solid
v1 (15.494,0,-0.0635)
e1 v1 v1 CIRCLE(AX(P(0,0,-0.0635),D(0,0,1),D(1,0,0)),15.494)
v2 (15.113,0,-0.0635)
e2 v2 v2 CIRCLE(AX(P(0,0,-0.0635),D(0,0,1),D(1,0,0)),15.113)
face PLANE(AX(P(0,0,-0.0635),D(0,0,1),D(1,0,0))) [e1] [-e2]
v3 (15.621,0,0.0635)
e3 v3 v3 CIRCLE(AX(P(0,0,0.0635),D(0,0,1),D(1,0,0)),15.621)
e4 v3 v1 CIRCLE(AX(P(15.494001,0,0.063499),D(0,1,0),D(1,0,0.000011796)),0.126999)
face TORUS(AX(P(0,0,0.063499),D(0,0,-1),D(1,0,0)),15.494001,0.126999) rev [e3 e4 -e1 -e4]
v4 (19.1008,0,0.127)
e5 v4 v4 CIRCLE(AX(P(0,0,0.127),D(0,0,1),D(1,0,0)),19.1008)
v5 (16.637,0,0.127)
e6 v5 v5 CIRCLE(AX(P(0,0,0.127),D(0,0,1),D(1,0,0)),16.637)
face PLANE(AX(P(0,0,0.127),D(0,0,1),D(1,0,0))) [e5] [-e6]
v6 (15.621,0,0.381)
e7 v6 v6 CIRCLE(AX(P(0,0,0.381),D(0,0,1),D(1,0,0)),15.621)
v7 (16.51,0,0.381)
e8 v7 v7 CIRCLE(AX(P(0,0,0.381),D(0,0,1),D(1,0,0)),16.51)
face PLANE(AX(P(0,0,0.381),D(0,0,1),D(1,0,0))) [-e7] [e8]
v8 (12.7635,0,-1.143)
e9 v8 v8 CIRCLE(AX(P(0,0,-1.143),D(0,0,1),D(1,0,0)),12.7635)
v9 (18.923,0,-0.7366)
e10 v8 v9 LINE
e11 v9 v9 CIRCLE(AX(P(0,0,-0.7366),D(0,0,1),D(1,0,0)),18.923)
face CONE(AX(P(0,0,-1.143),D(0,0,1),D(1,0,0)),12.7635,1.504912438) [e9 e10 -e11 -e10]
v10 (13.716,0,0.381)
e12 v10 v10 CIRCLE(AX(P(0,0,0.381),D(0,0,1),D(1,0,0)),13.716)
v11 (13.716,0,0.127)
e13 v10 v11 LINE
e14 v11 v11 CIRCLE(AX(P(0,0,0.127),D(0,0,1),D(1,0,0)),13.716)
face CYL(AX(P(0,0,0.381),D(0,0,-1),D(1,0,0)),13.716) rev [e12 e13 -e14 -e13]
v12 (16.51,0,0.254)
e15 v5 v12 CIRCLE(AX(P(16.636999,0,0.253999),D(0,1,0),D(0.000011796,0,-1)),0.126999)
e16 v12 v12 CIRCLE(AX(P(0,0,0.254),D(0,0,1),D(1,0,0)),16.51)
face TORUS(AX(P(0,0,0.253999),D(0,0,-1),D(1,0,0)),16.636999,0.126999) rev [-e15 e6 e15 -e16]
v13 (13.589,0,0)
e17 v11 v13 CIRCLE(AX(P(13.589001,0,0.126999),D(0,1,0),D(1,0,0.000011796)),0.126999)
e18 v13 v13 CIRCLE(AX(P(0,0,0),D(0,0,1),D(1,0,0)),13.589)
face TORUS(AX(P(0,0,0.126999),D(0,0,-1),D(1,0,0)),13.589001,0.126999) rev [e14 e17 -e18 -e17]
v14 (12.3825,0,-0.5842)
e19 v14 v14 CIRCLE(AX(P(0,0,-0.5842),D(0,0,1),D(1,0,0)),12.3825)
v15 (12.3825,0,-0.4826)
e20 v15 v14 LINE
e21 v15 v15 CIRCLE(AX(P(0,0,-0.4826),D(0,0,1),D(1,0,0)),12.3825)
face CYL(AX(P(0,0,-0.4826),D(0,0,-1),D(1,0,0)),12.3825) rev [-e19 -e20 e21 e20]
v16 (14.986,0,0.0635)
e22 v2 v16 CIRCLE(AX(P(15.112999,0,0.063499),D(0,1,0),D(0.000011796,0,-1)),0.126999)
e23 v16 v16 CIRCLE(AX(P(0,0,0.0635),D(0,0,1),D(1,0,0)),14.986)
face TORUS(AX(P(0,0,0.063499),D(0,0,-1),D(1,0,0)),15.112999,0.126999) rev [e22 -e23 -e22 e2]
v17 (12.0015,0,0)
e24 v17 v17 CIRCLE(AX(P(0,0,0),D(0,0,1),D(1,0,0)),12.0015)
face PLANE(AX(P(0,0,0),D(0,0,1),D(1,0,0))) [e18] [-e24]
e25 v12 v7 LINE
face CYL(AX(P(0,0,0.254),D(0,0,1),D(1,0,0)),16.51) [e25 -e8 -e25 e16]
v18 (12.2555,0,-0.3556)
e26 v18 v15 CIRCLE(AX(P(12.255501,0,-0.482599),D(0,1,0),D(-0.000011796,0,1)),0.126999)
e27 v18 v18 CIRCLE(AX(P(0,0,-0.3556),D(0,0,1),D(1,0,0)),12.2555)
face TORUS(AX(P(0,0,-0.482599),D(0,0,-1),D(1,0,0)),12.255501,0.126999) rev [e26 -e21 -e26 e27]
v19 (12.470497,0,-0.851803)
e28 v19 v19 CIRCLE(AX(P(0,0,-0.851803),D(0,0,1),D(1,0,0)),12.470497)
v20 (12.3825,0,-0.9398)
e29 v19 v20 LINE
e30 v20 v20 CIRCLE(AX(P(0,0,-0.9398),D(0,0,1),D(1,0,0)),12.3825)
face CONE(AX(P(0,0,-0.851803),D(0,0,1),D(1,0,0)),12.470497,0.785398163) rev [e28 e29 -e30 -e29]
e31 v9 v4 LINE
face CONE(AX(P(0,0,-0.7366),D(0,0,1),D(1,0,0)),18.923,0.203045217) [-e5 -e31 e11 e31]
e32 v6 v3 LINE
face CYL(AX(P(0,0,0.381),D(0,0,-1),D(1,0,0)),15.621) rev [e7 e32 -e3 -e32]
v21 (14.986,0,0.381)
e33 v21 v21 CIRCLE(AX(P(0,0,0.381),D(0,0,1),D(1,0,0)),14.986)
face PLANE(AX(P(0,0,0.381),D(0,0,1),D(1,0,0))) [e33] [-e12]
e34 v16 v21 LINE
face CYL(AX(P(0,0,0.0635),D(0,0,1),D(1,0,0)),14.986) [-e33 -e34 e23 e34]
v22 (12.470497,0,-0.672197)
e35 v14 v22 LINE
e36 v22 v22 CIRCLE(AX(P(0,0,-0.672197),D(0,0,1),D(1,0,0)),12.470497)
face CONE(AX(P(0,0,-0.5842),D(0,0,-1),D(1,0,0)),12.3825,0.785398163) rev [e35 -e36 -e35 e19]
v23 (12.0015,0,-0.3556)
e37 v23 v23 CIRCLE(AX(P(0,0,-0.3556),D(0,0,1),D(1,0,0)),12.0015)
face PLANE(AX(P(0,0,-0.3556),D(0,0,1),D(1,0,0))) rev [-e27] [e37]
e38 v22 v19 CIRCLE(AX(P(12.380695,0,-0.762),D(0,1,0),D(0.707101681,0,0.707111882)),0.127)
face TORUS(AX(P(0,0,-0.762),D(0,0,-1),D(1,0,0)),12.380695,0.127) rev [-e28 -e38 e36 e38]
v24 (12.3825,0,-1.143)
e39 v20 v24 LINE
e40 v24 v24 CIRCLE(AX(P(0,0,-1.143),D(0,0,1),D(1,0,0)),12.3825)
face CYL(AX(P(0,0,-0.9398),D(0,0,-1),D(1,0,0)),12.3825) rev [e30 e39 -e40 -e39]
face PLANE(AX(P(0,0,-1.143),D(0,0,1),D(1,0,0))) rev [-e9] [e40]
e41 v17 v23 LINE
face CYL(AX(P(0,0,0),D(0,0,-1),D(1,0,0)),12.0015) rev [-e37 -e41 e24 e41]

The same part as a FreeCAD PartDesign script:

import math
import FreeCAD as App
import Part
import Sketcher

V = App.Vector
Q = App.Units.Quantity

doc = App.newDocument("Part")
body = doc.addObject("PartDesign::Body", "Body")

# Sketch on XZ plane
sketch1 = body.newObject("Sketcher::SketchObject", "Sketch")
sketch1.AttachmentSupport = (doc.getObject("XZ_Plane"), [""])
sketch1.MapMode = "FlatFace"
sketch1.addGeometry([
    Part.LineSegment(V(13.59, 0, 0), V(12, 0, 0)),  # 0
    Part.LineSegment(V(12, 0, 0), V(12, -0.36, 0)),  # 1
    Part.LineSegment(V(12, -0.36, 0), V(12.26, -0.36, 0)),  # 2
    Part.ArcOfCircle(Part.Circle(V(12.26, -0.48, 0), V(0, 0, 1), 0.13), math.radians(0), math.radians(90)),  # 3
    Part.LineSegment(V(12.38, -0.48, 0), V(12.38, -0.58, 0)),  # 4
    Part.LineSegment(V(12.38, -0.58, 0), V(12.47, -0.67, 0)),  # 5
    Part.ArcOfCircle(Part.Circle(V(12.38, -0.76, 0), V(0, 0, 1), 0.13), math.radians(-45), math.radians(45)),  # 6
    Part.LineSegment(V(12.47, -0.85, 0), V(12.38, -0.94, 0)),  # 7
    Part.LineSegment(V(12.38, -0.94, 0), V(12.38, -1.14, 0)),  # 8
    Part.LineSegment(V(12.38, -1.14, 0), V(12.76, -1.14, 0)),  # 9
    Part.LineSegment(V(12.76, -1.14, 0), V(18.92, -0.74, 0)),  # 10
    Part.LineSegment(V(18.92, -0.74, 0), V(19.1, 0.13, 0)),  # 11
    Part.LineSegment(V(19.1, 0.13, 0), V(16.64, 0.13, 0)),  # 12
    Part.ArcOfCircle(Part.Circle(V(16.64, 0.25, 0), V(0, 0, 1), 0.13), math.radians(180), math.radians(270)),  # 13
    Part.LineSegment(V(16.51, 0.25, 0), V(16.51, 0.38, 0)),  # 14
    Part.LineSegment(V(16.51, 0.38, 0), V(15.62, 0.38, 0)),  # 15
    Part.LineSegment(V(15.62, 0.38, 0), V(15.62, 0.06, 0)),  # 16
    Part.ArcOfCircle(Part.Circle(V(15.49, 0.06, 0), V(0, 0, 1), 0.13), math.radians(-90), math.radians(0)),  # 17
    Part.LineSegment(V(15.49, -0.06, 0), V(15.11, -0.06, 0)),  # 18
    Part.ArcOfCircle(Part.Circle(V(15.11, 0.06, 0), V(0, 0, 1), 0.13), math.radians(180), math.radians(270)),  # 19
    Part.LineSegment(V(14.99, 0.06, 0), V(14.99, 0.38, 0)),  # 20
    Part.LineSegment(V(14.99, 0.38, 0), V(13.72, 0.38, 0)),  # 21
    Part.LineSegment(V(13.72, 0.38, 0), V(13.72, 0.13, 0)),  # 22
    Part.ArcOfCircle(Part.Circle(V(13.59, 0.13, 0), V(0, 0, 1), 0.13), math.radians(-90), math.radians(0)),  # 23
], False)
sketch1.addConstraint([
    Sketcher.Constraint("Coincident", 0, 2, 1, 1),
    Sketcher.Constraint("Coincident", 1, 2, 2, 1),
    Sketcher.Constraint("Coincident", 2, 2, 3, 2),
    Sketcher.Constraint("Coincident", 3, 1, 4, 1),
    Sketcher.Constraint("Coincident", 4, 2, 5, 1),
    Sketcher.Constraint("Coincident", 5, 2, 6, 2),
    Sketcher.Constraint("Coincident", 6, 1, 7, 1),
    Sketcher.Constraint("Coincident", 7, 2, 8, 1),
    Sketcher.Constraint("Coincident", 8, 2, 9, 1),
    Sketcher.Constraint("Coincident", 9, 2, 10, 1),
    Sketcher.Constraint("Coincident", 10, 2, 11, 1),
    Sketcher.Constraint("Coincident", 11, 2, 12, 1),
    Sketcher.Constraint("Coincident", 12, 2, 13, 2),
    Sketcher.Constraint("Coincident", 13, 1, 14, 1),
    Sketcher.Constraint("Coincident", 14, 2, 15, 1),
    Sketcher.Constraint("Coincident", 15, 2, 16, 1),
    Sketcher.Constraint("Coincident", 16, 2, 17, 2),
    Sketcher.Constraint("Coincident", 17, 1, 18, 1),
    Sketcher.Constraint("Coincident", 18, 2, 19, 2),
    Sketcher.Constraint("Coincident", 19, 1, 20, 1),
    Sketcher.Constraint("Coincident", 20, 2, 21, 1),
    Sketcher.Constraint("Coincident", 21, 2, 22, 1),
    Sketcher.Constraint("Coincident", 22, 2, 23, 2),
    Sketcher.Constraint("Coincident", 23, 1, 0, 1),
    Sketcher.Constraint("Horizontal", 0),
    Sketcher.Constraint("Vertical", 1),
    Sketcher.Constraint("Horizontal", 2),
    Sketcher.Constraint("Vertical", 4),
    Sketcher.Constraint("Vertical", 8),
    Sketcher.Constraint("Horizontal", 9),
    Sketcher.Constraint("Horizontal", 12),
    Sketcher.Constraint("Vertical", 14),
    Sketcher.Constraint("Horizontal", 15),
    Sketcher.Constraint("Vertical", 16),
    Sketcher.Constraint("Horizontal", 18),
    Sketcher.Constraint("Vertical", 20),
    Sketcher.Constraint("Horizontal", 21),
    Sketcher.Constraint("Vertical", 22),
    Sketcher.Constraint("Equal", 3, 6),
    Sketcher.Constraint("Equal", 6, 13),
    Sketcher.Constraint("Equal", 13, 17),
    Sketcher.Constraint("Equal", 17, 19),
    Sketcher.Constraint("Equal", 19, 23),
    Sketcher.Constraint("PointOnObject", 0, 2, -1),
    Sketcher.Constraint("Perpendicular", 5, 7),
    Sketcher.Constraint("Horizontal", 23, 3, 11, 2),
    Sketcher.Constraint("Horizontal", 19, 3, 16, 2),
    Sketcher.Constraint("Horizontal", 16, 2, 19, 1),
    Sketcher.Constraint("Horizontal", 15, 2, 20, 2),
    Sketcher.Constraint("Horizontal", 12, 2, 22, 2),
    Sketcher.Constraint("Vertical", 3, 3, 2, 2),
    Sketcher.Constraint("Vertical", 5, 2, 6, 1),
    Sketcher.Constraint("Vertical", 4, 2, 7, 2),
    Sketcher.Constraint("Vertical", 13, 3, 12, 2),
    Sketcher.Constraint("Vertical", 19, 3, 18, 2),
    Sketcher.Constraint("Equal", 9, 18),
    Sketcher.Constraint("Equal", 2, 22),
    Sketcher.Constraint("Equal", 5, 7),
    Sketcher.Constraint("Radius", 3, Q("0.0049999 in")),
    Sketcher.Constraint("DistanceX", 2, 1, 2, 2, Q("0.01 in")),
    Sketcher.Constraint("DistanceX", 21, 2, 21, 1, Q("0.05 in")),
    Sketcher.Constraint("DistanceX", 0, 2, 0, 1, Q("0.0625 in")),
    Sketcher.Constraint("DistanceX", 9, 1, 9, 2, Q("0.015 in")),
    Sketcher.Constraint("DistanceX", 12, 2, 12, 1, Q("0.097 in")),
    Sketcher.Constraint("DistanceX", 15, 2, 15, 1, Q("0.035 in")),
    Sketcher.Constraint("DistanceY", 1, 2, 1, 1, Q("0.014 in")),
    Sketcher.Constraint("DistanceY", 4, 2, 4, 1, Q("0.004 in")),
    Sketcher.Constraint("DistanceY", 8, 2, 8, 1, Q("0.008 in")),
    Sketcher.Constraint("DistanceY", 14, 1, 14, 2, Q("0.005 in")),
    Sketcher.Constraint("DistanceY", 6, 3, -1, 1, Q("0.03 in")),
    Sketcher.Constraint("DistanceX", -1, 1, 17, 3, Q("0.6100001 in")),
    Sketcher.Constraint("DistanceX", -1, 1, 17, 1, Q("0.61 in")),
    Sketcher.Constraint("DistanceX", 13, 3, 10, 2, Q("0.0900001 in")),
    Sketcher.Constraint("DistanceY", 16, 2, 16, 1, Q("0.0125 in")),
    Sketcher.Constraint("DistanceY", 3, 1, -1, 1, Q("0.019 in")),
    Sketcher.Constraint("DistanceY", 10, 2, -1, 1, Q("0.029 in")),
    Sketcher.Constraint("DistanceX", -1, 1, 23, 1, Q("0.535 in")),
    Sketcher.Constraint("DistanceX", 6, 3, 5, 2, Q("0.089802 mm")),
])
revolution = body.newObject("PartDesign::Revolution", "Revolution")
revolution.Profile = sketch1
revolution.ReferenceAxis = (sketch1, ["V_Axis"])
revolution.Angle = 360

doc.recompute()
